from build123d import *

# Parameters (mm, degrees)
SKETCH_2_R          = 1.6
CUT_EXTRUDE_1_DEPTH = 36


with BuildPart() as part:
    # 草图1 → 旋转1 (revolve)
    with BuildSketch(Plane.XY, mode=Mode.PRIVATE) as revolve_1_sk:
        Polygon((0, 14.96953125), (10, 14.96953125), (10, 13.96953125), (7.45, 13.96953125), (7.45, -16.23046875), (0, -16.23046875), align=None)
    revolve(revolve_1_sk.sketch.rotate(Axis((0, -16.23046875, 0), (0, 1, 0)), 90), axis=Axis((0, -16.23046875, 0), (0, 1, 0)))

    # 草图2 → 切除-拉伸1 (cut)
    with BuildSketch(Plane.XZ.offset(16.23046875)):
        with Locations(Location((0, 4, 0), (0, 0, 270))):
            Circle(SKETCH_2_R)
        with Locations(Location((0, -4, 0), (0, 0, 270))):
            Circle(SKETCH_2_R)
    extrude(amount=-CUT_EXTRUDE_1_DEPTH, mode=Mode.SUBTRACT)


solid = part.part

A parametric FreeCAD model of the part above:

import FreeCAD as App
import Part
import Sketcher
from FreeCAD import Vector
Q = App.Units.Quantity

doc = App.newDocument("Part")
body = doc.addObject("PartDesign::Body", "Body")

# Sketch on XY plane
sketch1 = body.newObject("Sketcher::SketchObject", "Sketch")
sketch1.AttachmentSupport = (doc.getObject("XY_Plane"), [""])
sketch1.MapMode = "FlatFace"
sketch1.addGeometry([
    Part.LineSegment(Vector(10, 15, 0), Vector(0, 15, 0)),  # 0
    Part.LineSegment(Vector(0, 15, 0), Vector(0, -16.2, 0)),  # 1
    Part.LineSegment(Vector(0, -16.2, 0), Vector(7.5, -16.2, 0)),  # 2
    Part.LineSegment(Vector(7.5, -16.2, 0), Vector(7.5, 14, 0)),  # 3
    Part.LineSegment(Vector(7.5, 14, 0), Vector(10, 14, 0)),  # 4
    Part.LineSegment(Vector(10, 14, 0), Vector(10, 15, 0)),  # 5
], False)
sketch1.addConstraint([
    Sketcher.Constraint("Coincident", 0, 2, 1, 1),
    Sketcher.Constraint("Coincident", 1, 2, 2, 1),
    Sketcher.Constraint("Coincident", 2, 2, 3, 1),
    Sketcher.Constraint("Coincident", 3, 2, 4, 1),
    Sketcher.Constraint("Coincident", 4, 2, 5, 1),
    Sketcher.Constraint("Coincident", 5, 2, 0, 1),
    Sketcher.Constraint("Horizontal", 0),
    Sketcher.Constraint("Vertical", 1),
    Sketcher.Constraint("Horizontal", 2),
    Sketcher.Constraint("Vertical", 3),
    Sketcher.Constraint("Horizontal", 4),
    Sketcher.Constraint("Vertical", 5),
    Sketcher.Constraint("PointOnObject", 0, 2, -2),
    Sketcher.Constraint("DistanceX", 0, 2, 0, 1, Q("10 mm")),
    Sketcher.Constraint("DistanceY", 5, 1, 5, 2, Q("1 mm")),
    Sketcher.Constraint("DistanceY", 1, 2, 1, 1, Q("31.2 mm")),
    Sketcher.Constraint("DistanceX", 2, 1, 2, 2, Q("7.45 mm")),
    Sketcher.Constraint("DistanceY", -1, 1, 0, 2, Q("14.969531 mm")),
])
revolution = body.newObject("PartDesign::Revolution", "Revolution")
revolution.Profile = sketch1
revolution.ReferenceAxis = (sketch1, ["V_Axis"])
revolution.Angle = 360

# Sketch on XZ plane
sketch2 = body.newObject("Sketcher::SketchObject", "Sketch001")
sketch2.AttachmentSupport = (doc.getObject("XZ_Plane"), [""])
sketch2.MapMode = "FlatFace"
sketch2.AttachmentOffset = App.Placement(Vector(0, 0, 16.230469), App.Rotation())
sketch2.addGeometry([
    Part.Circle(Vector(0, 4, 0), Vector(0, 0, 1), 1.6),
    Part.Circle(Vector(0, -4, 0), Vector(0, 0, 1), 1.6),
], False)
sketch2.addConstraint([
    Sketcher.Constraint("Equal", 0, 1),
    Sketcher.Constraint("Symmetric", 0, 3, 1, 3, -1, 1),
    Sketcher.Constraint("PointOnObject", 0, 3, -2),
    Sketcher.Constraint("Diameter", 0, Q("3.2 mm")),
    Sketcher.Constraint("DistanceY", -1, 1, 0, 3, Q("4 mm")),
])
pocket1 = body.newObject("PartDesign::Pocket", "Pocket")
pocket1.Profile = sketch2
pocket1.Length = 36

doc.recompute()
